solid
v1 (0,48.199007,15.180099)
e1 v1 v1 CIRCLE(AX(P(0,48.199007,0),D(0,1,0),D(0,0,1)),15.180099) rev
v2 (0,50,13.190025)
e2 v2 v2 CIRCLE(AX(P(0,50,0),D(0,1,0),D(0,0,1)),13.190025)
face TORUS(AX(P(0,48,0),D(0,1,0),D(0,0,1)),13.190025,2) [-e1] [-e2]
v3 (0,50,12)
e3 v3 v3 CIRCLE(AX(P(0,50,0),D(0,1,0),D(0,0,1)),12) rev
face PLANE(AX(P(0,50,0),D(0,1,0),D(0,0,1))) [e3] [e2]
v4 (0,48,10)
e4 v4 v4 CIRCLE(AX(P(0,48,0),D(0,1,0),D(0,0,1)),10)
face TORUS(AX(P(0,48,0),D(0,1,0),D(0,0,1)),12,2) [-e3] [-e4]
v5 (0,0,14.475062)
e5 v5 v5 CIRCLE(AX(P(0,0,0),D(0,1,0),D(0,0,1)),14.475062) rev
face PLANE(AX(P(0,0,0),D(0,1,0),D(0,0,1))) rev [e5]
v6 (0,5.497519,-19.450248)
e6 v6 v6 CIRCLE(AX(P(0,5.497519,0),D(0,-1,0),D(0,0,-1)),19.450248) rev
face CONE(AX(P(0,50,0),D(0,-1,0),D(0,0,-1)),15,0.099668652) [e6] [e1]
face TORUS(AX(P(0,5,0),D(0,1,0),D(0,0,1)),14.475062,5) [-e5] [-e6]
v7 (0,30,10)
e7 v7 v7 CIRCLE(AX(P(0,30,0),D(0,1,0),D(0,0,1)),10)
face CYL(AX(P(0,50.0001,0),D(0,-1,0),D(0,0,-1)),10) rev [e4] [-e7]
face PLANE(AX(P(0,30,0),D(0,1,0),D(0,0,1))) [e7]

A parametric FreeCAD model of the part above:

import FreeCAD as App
import Part
import Sketcher

V = App.Vector
Q = App.Units.Quantity


def edges_at(feature, points):
    """Names of the edges that pass closest to the given points."""
    edges = feature.Shape.Edges
    near = lambda p: min(range(len(edges)), key=lambda i: edges[i].distToShape(Part.Vertex(*p))[0])
    return sorted({f"Edge{near(p) + 1}" for p in points})

doc = App.newDocument("Part")
params = doc.addObject("Spreadsheet::Sheet", "Params")
for row, (alias, value) in enumerate([
    ("sketch1_diameter", "30 mm"),
    ("sketch2_diameter", "40 mm"),
    ("sketch3_diameter", "20 mm"),
    ("pocket1_length", "58.445627 mm"),
    ("pocket1_length2", "20 mm"),
    ("fillet_radius", "5 mm"),
    ("fillet2_radius", "2 mm"),
], start=1):
    params.set(f"A{row}", alias)
    params.set(f"B{row}", "=" + value)
    params.setAlias(f"B{row}", alias)

body = doc.addObject("PartDesign::Body", "Body")

# Sketch on XZ plane
sketch1 = body.newObject("Sketcher::SketchObject", "Sketch")
sketch1.AttachmentSupport = (doc.getObject("XZ_Plane"), [""])
sketch1.MapMode = "FlatFace"
sketch1.AttachmentOffset = App.Placement(V(0, 0, -50), App.Rotation())
sketch1.addGeometry(Part.Circle(V(0, 0, 0), V(0, 0, 1), 15), False)
sketch1.addConstraint([
    Sketcher.Constraint("Coincident", 0, 3, -1, 1),
    Sketcher.Constraint("Diameter", 0, Q("30 mm")),
])
sketch1.setExpression("Constraints[1]", "Params.sketch1_diameter")

# Sketch on XZ plane
sketch2 = body.newObject("Sketcher::SketchObject", "Sketch001")
sketch2.AttachmentSupport = (doc.getObject("XZ_Plane"), [""])
sketch2.MapMode = "FlatFace"
sketch2.addGeometry(Part.Circle(V(0, 0, 0), V(0, 0, 1), 20), False)
sketch2.addConstraint([
    Sketcher.Constraint("Coincident", 0, 3, -1, 1),
    Sketcher.Constraint("Diameter", 0, Q("40 mm")),
])
sketch2.setExpression("Constraints[1]", "Params.sketch2_diameter")

additiveloft = body.newObject("PartDesign::AdditiveLoft", "AdditiveLoft")
additiveloft.Profile = sketch1
additiveloft.Sections = [sketch2]

# Sketch on XZ plane
sketch3 = body.newObject("Sketcher::SketchObject", "Sketch002")
sketch3.AttachmentSupport = (doc.getObject("XZ_Plane"), [""])
sketch3.MapMode = "FlatFace"
sketch3.AttachmentOffset = App.Placement(V(0, 0, -50), App.Rotation())
sketch3.addGeometry(Part.Circle(V(0, 0, 0), V(0, 0, 1), 10), False)
sketch3.addConstraint([
    Sketcher.Constraint("Coincident", 0, 3, -1, 1),
    Sketcher.Constraint("Diameter", 0, Q("20 mm")),
])
sketch3.setExpression("Constraints[1]", "Params.sketch3_diameter")
pocket1 = body.newObject("PartDesign::Pocket", "Pocket")
pocket1.Profile = sketch3
pocket1.Type = "TwoLengths"
pocket1.setExpression("Length", "Params.pocket1_length")
pocket1.setExpression("Length2", "Params.pocket1_length2")
doc.recompute()

fillet = body.newObject("PartDesign::Fillet", "Fillet")
fillet.Base = (pocket1, edges_at(pocket1, [(-20, 0, 0)]))
fillet.setExpression("Radius", "Params.fillet_radius")
doc.recompute()

fillet2 = body.newObject("PartDesign::Fillet", "Fillet001")
fillet2.Base = (fillet, edges_at(fillet, [(-15, 50, 0), (0, 50, -10)]))
fillet2.setExpression("Radius", "Params.fillet2_radius")

doc.recompute()
